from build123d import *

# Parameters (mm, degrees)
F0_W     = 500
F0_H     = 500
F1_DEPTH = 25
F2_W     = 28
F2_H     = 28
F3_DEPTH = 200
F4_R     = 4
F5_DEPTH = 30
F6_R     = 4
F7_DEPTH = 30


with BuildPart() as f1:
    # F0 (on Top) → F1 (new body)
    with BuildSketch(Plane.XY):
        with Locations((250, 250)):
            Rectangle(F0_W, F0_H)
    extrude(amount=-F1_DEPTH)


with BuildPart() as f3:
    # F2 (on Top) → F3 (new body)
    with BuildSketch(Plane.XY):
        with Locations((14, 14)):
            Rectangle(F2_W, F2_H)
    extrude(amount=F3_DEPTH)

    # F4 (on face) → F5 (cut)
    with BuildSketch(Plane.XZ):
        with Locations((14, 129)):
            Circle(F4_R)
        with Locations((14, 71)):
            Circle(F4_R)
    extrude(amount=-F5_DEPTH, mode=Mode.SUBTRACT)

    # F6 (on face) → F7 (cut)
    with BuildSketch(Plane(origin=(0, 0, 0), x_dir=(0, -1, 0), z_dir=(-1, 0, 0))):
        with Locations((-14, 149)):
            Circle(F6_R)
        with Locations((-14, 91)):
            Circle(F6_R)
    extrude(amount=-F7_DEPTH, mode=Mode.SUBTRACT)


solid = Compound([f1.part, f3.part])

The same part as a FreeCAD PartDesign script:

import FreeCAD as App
import Part
import Sketcher
from FreeCAD import Vector
Q = App.Units.Quantity


def add_polygon(sketch, points):
    """Adds a closed chain of lines whose ends are joined by coincident constraints."""
    first, n = sketch.GeometryCount, len(points)
    for a, b in zip(points, points[1:] + points[:1]):
        sketch.addGeometry(Part.LineSegment(App.Vector(*a, 0), App.Vector(*b, 0)), False)
    for i in range(n):
        sketch.addConstraint(Sketcher.Constraint("Coincident", first + i, 2, first + (i + 1) % n, 1))

doc = App.newDocument("Part")
params = doc.addObject("Spreadsheet::Sheet", "Params")
for row, (alias, value) in enumerate([
    ("sketch1_width", "500 mm"),
    ("pad1_length", "25 mm"),
    ("sketch2_width", "28 mm"),
    ("pad2_length", "200 mm"),
    ("sketch3_diameter", "8 mm"),
    ("pocket1_length", "30 mm"),
    ("sketch4_diameter", "8 mm"),
    ("pocket2_length", "30 mm"),
], start=1):
    params.set(f"A{row}", alias)
    params.set(f"B{row}", "=" + value)
    params.setAlias(f"B{row}", alias)

body = doc.addObject("PartDesign::Body", "Body")

# Sketch on XY plane
sketch1 = doc.addObject("Sketcher::SketchObject", "Sketch")
body.addObject(sketch1)
sketch1.AttachmentSupport = (doc.XY_Plane, [""])
sketch1.MapMode = "FlatFace"
add_polygon(sketch1, [(0, 500), (0, 0), (500, 0), (500, 500)])  # lines 0-3
sketch1.addConstraint([
    Sketcher.Constraint("Vertical", 0),
    Sketcher.Constraint("Horizontal", 1),
    Sketcher.Constraint("Vertical", 2),
    Sketcher.Constraint("Horizontal", 3),
    Sketcher.Constraint("Coincident", 0, 2, -1, 1),
    Sketcher.Constraint("Equal", 3, 0),
    Sketcher.Constraint("DistanceX", 1, 1, 1, 2, Q("500 mm")),
])
sketch1.setExpression("Constraints[10]", "Params.sketch1_width")
pad1 = doc.addObject("PartDesign::Pad", "Pad")
body.addObject(pad1)
pad1.Profile = sketch1
pad1.setExpression("Length", "Params.pad1_length")
pad1.Reversed = True
body2 = doc.addObject("PartDesign::Body", "Body001")

# Sketch on XY plane
sketch2 = doc.addObject("Sketcher::SketchObject", "Sketch001")
body2.addObject(sketch2)
sketch2.AttachmentSupport = (doc.getObject("XY_Plane001"), [""])
sketch2.MapMode = "FlatFace"
add_polygon(sketch2, [(0, 28), (0, 0), (28, 0), (28, 28)])  # lines 0-3
sketch2.addConstraint([
    Sketcher.Constraint("Vertical", 0),
    Sketcher.Constraint("Horizontal", 1),
    Sketcher.Constraint("Vertical", 2),
    Sketcher.Constraint("Horizontal", 3),
    Sketcher.Constraint("Coincident", 0, 2, -1, 1),
    Sketcher.Constraint("Equal", 3, 0),
    Sketcher.Constraint("DistanceX", 1, 1, 1, 2, Q("28 mm")),
])
sketch2.setExpression("Constraints[10]", "Params.sketch2_width")
pad2 = doc.addObject("PartDesign::Pad", "Pad001")
body2.addObject(pad2)
pad2.Profile = sketch2
pad2.setExpression("Length", "Params.pad2_length")

# Sketch on XZ plane
sketch3 = doc.addObject("Sketcher::SketchObject", "Sketch002")
body2.addObject(sketch3)
sketch3.AttachmentSupport = (doc.getObject("XZ_Plane001"), [""])
sketch3.MapMode = "FlatFace"
sketch3.addGeometry([
    Part.Circle(Vector(14, 129, 0), Vector(0, 0, 1), 4),
    Part.Circle(Vector(14, 71, 0), Vector(0, 0, 1), 4),
], False)
sketch3.addConstraint([
    Sketcher.Constraint("Equal", 0, 1),
    Sketcher.Constraint("Vertical", 0, 3, 1, 3),
    Sketcher.Constraint("Diameter", 0, Q("8 mm")),
    Sketcher.Constraint("DistanceX", -1, 1, 0, 3, Q("14 mm")),
    Sketcher.Constraint("DistanceY", -1, 1, 0, 3, Q("129 mm")),
    Sketcher.Constraint("DistanceY", -1, 1, 1, 3, Q("71 mm")),
])
sketch3.setExpression("Constraints[2]", "Params.sketch3_diameter")
pocket1 = doc.addObject("PartDesign::Pocket", "Pocket")
body2.addObject(pocket1)
pocket1.Profile = sketch3
pocket1.setExpression("Length", "Params.pocket1_length")

# Sketch on YZ plane
sketch4 = doc.addObject("Sketcher::SketchObject", "Sketch003")
body2.addObject(sketch4)
sketch4.AttachmentSupport = (doc.getObject("YZ_Plane001"), [""])
sketch4.MapMode = "FlatFace"
sketch4.addGeometry([
    Part.Circle(Vector(14, 149, 0), Vector(0, 0, 1), 4),
    Part.Circle(Vector(14, 91, 0), Vector(0, 0, 1), 4),
], False)
sketch4.addConstraint([
    Sketcher.Constraint("Equal", 0, 1),
    Sketcher.Constraint("Vertical", 0, 3, 1, 3),
    Sketcher.Constraint("Diameter", 0, Q("8 mm")),
    Sketcher.Constraint("DistanceX", -1, 1, 0, 3, Q("14 mm")),
    Sketcher.Constraint("DistanceY", -1, 1, 0, 3, Q("149 mm")),
    Sketcher.Constraint("DistanceY", -1, 1, 1, 3, Q("91 mm")),
])
sketch4.setExpression("Constraints[2]", "Params.sketch4_diameter")
pocket2 = doc.addObject("PartDesign::Pocket", "Pocket001")
body2.addObject(pocket2)
pocket2.Profile = sketch4
pocket2.setExpression("Length", "Params.pocket2_length")
pocket2.Reversed = True

doc.recompute()
